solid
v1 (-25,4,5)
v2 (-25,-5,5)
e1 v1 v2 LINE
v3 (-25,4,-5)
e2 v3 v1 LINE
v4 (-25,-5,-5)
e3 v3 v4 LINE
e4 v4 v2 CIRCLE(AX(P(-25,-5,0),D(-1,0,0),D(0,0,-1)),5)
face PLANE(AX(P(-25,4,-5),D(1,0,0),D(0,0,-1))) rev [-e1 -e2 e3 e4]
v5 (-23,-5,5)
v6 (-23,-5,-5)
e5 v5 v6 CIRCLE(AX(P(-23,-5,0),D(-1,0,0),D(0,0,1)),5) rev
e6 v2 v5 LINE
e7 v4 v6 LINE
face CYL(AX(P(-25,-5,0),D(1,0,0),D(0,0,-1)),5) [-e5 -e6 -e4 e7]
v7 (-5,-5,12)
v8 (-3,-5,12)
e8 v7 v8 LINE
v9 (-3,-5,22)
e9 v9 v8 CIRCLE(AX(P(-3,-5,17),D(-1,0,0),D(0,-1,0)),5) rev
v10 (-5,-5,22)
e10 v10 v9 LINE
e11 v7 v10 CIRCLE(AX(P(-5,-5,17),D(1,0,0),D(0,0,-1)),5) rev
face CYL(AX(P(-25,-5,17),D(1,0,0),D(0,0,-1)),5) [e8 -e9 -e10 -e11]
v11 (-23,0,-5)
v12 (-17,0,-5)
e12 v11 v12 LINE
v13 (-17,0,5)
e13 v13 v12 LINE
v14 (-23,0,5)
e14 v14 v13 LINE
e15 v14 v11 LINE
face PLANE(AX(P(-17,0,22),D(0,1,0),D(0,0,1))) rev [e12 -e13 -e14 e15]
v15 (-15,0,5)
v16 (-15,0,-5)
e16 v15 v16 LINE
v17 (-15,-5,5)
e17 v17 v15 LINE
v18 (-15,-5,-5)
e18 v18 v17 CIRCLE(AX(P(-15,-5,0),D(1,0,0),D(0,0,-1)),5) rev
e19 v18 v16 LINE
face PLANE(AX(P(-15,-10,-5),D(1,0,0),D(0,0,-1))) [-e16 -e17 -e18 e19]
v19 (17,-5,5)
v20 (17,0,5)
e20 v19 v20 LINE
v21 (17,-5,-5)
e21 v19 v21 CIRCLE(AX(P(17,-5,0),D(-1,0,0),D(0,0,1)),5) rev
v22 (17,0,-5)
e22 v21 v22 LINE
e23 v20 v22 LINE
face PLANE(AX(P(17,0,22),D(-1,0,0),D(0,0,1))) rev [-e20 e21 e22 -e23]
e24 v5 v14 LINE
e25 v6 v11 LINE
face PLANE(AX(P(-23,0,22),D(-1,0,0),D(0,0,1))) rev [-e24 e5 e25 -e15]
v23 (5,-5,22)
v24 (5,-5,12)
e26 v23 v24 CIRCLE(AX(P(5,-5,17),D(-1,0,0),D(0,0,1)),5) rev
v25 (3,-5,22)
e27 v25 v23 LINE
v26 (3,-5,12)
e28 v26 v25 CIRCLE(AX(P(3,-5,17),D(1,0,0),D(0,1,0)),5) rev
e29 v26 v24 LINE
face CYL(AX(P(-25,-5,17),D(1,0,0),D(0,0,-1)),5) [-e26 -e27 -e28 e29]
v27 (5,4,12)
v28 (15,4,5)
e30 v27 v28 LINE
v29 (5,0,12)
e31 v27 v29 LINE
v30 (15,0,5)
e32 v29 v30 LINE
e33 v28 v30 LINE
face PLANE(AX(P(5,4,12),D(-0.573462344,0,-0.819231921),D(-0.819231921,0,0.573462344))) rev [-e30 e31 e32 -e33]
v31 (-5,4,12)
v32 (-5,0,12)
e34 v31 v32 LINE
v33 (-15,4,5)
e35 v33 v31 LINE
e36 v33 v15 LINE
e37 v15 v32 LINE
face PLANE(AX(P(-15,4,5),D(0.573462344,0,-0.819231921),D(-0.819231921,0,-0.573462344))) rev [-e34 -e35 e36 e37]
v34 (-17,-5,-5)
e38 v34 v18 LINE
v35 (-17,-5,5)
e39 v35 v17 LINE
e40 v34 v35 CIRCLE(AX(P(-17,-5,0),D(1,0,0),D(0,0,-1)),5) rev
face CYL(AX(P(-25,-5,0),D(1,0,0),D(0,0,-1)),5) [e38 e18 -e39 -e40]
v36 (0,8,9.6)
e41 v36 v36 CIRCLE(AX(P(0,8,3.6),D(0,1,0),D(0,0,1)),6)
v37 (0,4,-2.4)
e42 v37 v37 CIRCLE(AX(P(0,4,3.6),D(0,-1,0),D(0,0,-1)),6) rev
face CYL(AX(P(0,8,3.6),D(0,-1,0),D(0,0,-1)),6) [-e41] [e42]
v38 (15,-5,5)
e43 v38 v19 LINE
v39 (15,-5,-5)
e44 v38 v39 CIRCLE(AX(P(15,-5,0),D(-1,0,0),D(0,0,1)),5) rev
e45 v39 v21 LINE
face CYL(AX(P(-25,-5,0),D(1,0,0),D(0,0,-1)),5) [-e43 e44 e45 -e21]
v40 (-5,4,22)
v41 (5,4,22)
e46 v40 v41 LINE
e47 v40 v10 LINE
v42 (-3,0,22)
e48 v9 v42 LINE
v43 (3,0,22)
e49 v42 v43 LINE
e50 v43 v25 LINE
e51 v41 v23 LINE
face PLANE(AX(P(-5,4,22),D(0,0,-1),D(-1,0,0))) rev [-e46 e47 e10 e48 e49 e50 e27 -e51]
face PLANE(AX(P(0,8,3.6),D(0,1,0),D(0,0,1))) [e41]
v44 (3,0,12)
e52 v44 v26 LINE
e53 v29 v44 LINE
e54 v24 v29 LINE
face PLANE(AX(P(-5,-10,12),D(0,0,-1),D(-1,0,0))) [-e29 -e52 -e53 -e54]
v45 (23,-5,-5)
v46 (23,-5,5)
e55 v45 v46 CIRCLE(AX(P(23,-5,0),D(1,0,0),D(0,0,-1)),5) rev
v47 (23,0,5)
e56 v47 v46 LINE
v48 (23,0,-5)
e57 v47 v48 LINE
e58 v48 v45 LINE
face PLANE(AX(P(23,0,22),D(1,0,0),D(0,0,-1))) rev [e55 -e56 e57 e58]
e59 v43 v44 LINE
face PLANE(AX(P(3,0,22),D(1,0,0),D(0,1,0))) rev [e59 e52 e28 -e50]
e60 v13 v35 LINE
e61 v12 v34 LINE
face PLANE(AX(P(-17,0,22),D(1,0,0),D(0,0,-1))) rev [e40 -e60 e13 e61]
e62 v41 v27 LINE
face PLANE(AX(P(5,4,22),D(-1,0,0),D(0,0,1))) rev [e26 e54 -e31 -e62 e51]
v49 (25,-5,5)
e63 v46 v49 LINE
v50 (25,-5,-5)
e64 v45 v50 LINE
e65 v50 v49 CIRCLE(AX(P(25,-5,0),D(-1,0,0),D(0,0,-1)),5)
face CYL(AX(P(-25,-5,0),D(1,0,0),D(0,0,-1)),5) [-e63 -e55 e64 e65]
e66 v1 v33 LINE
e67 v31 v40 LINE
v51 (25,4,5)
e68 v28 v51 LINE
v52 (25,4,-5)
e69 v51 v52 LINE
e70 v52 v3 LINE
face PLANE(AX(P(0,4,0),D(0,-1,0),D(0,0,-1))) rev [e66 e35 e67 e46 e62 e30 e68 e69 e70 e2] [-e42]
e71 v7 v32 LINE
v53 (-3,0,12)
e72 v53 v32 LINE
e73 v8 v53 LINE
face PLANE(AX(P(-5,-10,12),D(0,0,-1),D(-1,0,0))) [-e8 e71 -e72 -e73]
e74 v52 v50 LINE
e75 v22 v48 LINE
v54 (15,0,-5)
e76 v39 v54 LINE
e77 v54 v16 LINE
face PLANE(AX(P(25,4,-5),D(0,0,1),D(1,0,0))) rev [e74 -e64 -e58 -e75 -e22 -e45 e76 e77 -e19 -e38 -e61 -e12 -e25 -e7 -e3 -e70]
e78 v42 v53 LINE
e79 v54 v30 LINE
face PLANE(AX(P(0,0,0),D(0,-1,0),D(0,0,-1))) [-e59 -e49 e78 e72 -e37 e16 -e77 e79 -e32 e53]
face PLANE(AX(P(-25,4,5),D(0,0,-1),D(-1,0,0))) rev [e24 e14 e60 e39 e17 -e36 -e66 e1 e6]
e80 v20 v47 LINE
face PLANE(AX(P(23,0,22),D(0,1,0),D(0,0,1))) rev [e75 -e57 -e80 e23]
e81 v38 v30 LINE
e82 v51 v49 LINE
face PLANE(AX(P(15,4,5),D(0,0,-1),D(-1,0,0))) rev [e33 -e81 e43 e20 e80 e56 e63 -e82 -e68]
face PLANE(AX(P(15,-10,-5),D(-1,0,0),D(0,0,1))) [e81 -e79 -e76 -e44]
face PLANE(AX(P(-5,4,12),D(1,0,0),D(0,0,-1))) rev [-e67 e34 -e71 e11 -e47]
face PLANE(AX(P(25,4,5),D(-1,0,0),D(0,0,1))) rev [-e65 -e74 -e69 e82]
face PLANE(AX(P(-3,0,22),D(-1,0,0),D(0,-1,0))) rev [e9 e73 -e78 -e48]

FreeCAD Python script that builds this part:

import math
import FreeCAD as App
import Part
import Sketcher
Q = App.Units.Quantity

doc = App.newDocument("Part")
params = doc.addObject("Spreadsheet::Sheet", "Params")
for row, (alias, value) in enumerate([
    ("sketch1_width", "10 mm"),
    ("sketch1_width2", "50 mm"),
    ("pad1_length", "4 mm"),
    ("sketch2_width", "10 mm"),
    ("pad2_length", "10 mm"),
    ("sketch3_width", "6 mm"),
    ("sketch4_radius", "5 mm"),
    ("sketch5_diameter", "12 mm"),
    ("pad3_length", "4 mm"),
], start=1):
    params.set(f"A{row}", alias)
    params.set(f"B{row}", "=" + value)
    params.setAlias(f"B{row}", alias)

body = doc.addObject("PartDesign::Body", "Body")

# Sketch on XZ plane
sketch1 = body.newObject("Sketcher::SketchObject", "Sketch")
sketch1.AttachmentSupport = (doc.getObject("XZ_Plane"), [""])
sketch1.MapMode = "FlatFace"
sketch1.addGeometry([
    Part.LineSegment(App.Vector(-5, 22, 0), App.Vector(5, 22, 0)),  # 0
    Part.LineSegment(App.Vector(5, 22, 0), App.Vector(5, 12, 0)),  # 1
    Part.LineSegment(App.Vector(5, 12, 0), App.Vector(15, 5, 0)),  # 2
    Part.LineSegment(App.Vector(15, 5, 0), App.Vector(25, 5, 0)),  # 3
    Part.LineSegment(App.Vector(25, 5, 0), App.Vector(25, -5, 0)),  # 4
    Part.LineSegment(App.Vector(25, -5, 0), App.Vector(-25, -5, 0)),  # 5
    Part.LineSegment(App.Vector(-25, -5, 0), App.Vector(-25, 5, 0)),  # 6
    Part.LineSegment(App.Vector(-25, 5, 0), App.Vector(-15, 5, 0)),  # 7
    Part.LineSegment(App.Vector(-15, 5, 0), App.Vector(-5, 12, 0)),  # 8
    Part.LineSegment(App.Vector(-5, 12, 0), App.Vector(-5, 22, 0)),  # 9
], False)
sketch1.addConstraint([
    Sketcher.Constraint("Coincident", 0, 2, 1, 1),
    Sketcher.Constraint("Coincident", 1, 2, 2, 1),
    Sketcher.Constraint("Coincident", 2, 2, 3, 1),
    Sketcher.Constraint("Coincident", 3, 2, 4, 1),
    Sketcher.Constraint("Coincident", 4, 2, 5, 1),
    Sketcher.Constraint("Coincident", 5, 2, 6, 1),
    Sketcher.Constraint("Coincident", 6, 2, 7, 1),
    Sketcher.Constraint("Coincident", 7, 2, 8, 1),
    Sketcher.Constraint("Coincident", 8, 2, 9, 1),
    Sketcher.Constraint("Coincident", 9, 2, 0, 1),
    Sketcher.Constraint("Horizontal", 0),
    Sketcher.Constraint("Vertical", 1),
    Sketcher.Constraint("Horizontal", 3),
    Sketcher.Constraint("Vertical", 4),
    Sketcher.Constraint("Horizontal", 5),
    Sketcher.Constraint("Vertical", 6),
    Sketcher.Constraint("Horizontal", 7),
    Sketcher.Constraint("Vertical", 9),
    Sketcher.Constraint("Symmetric", 3, 2, 5, 2, -1, 1),
    Sketcher.Constraint("Symmetric", 2, 2, 7, 2, -2),
    Sketcher.Constraint("Symmetric", 1, 2, 8, 2, -2),
    Sketcher.Constraint("Equal", 0, 3),
    Sketcher.Constraint("Equal", 7, 1),
    Sketcher.Constraint("Equal", 1, 4),
    Sketcher.Constraint("DistanceX", 0, 1, 0, 2, Q("10 mm")),
    Sketcher.Constraint("DistanceX", 5, 2, 5, 1, Q("50 mm")),
    Sketcher.Constraint("DistanceY", -1, 1, 0, 2, Q("22 mm")),
])
sketch1.setExpression("Constraints[24]", "Params.sketch1_width")
sketch1.setExpression("Constraints[25]", "Params.sketch1_width2")
pad1 = body.newObject("PartDesign::Pad", "Pad")
pad1.Profile = sketch1
pad1.setExpression("Length", "Params.pad1_length")
pad1.Reversed = True

# Sketch on XZ plane
sketch2 = body.newObject("Sketcher::SketchObject", "Sketch001")
sketch2.AttachmentSupport = (doc.getObject("XZ_Plane"), [""])
sketch2.MapMode = "FlatFace"
sketch2.addGeometry([
    Part.LineSegment(App.Vector(-25, -5, 0), App.Vector(-25, 5, 0)),  # 0
    Part.LineSegment(App.Vector(-25, 5, 0), App.Vector(-15, 5, 0)),  # 1
    Part.LineSegment(App.Vector(-15, 5, 0), App.Vector(-15, -5, 0)),  # 2
    Part.LineSegment(App.Vector(-15, -5, 0), App.Vector(-25, -5, 0)),  # 3
    Part.LineSegment(App.Vector(15, -5, 0), App.Vector(15, 5, 0)),  # 4
    Part.LineSegment(App.Vector(15, 5, 0), App.Vector(25, 5, 0)),  # 5
    Part.LineSegment(App.Vector(25, 5, 0), App.Vector(25, -5, 0)),  # 6
    Part.LineSegment(App.Vector(25, -5, 0), App.Vector(15, -5, 0)),  # 7
    Part.LineSegment(App.Vector(-5, 12, 0), App.Vector(-5, 22, 0)),  # 8
    Part.LineSegment(App.Vector(-5, 22, 0), App.Vector(5, 22, 0)),  # 9
    Part.LineSegment(App.Vector(5, 22, 0), App.Vector(5, 12, 0)),  # 10
    Part.LineSegment(App.Vector(5, 12, 0), App.Vector(-5, 12, 0)),  # 11
], False)
sketch2.addConstraint([
    Sketcher.Constraint("Coincident", 0, 2, 1, 1),
    Sketcher.Constraint("Coincident", 1, 2, 2, 1),
    Sketcher.Constraint("Coincident", 2, 2, 3, 1),
    Sketcher.Constraint("Coincident", 3, 2, 0, 1),
    Sketcher.Constraint("Coincident", 4, 2, 5, 1),
    Sketcher.Constraint("Coincident", 5, 2, 6, 1),
    Sketcher.Constraint("Coincident", 6, 2, 7, 1),
    Sketcher.Constraint("Coincident", 7, 2, 4, 1),
    Sketcher.Constraint("Coincident", 8, 2, 9, 1),
    Sketcher.Constraint("Coincident", 9, 2, 10, 1),
    Sketcher.Constraint("Coincident", 10, 2, 11, 1),
    Sketcher.Constraint("Coincident", 11, 2, 8, 1),
    Sketcher.Constraint("Vertical", 0),
    Sketcher.Constraint("Horizontal", 1),
    Sketcher.Constraint("Vertical", 2),
    Sketcher.Constraint("Horizontal", 3),
    Sketcher.Constraint("Vertical", 4),
    Sketcher.Constraint("Horizontal", 5),
    Sketcher.Constraint("Vertical", 6),
    Sketcher.Constraint("Horizontal", 7),
    Sketcher.Constraint("Vertical", 8),
    Sketcher.Constraint("Horizontal", 9),
    Sketcher.Constraint("Vertical", 10),
    Sketcher.Constraint("Horizontal", 11),
    Sketcher.Constraint("Symmetric", 2, 2, 4, 2, -1, 1),
    Sketcher.Constraint("Symmetric", 0, 2, 6, 2, -1, 1),
    Sketcher.Constraint("Horizontal", 1, 2, 4, 2),
    Sketcher.Constraint("Equal", 7, 9),
    Sketcher.Constraint("Equal", 11, 0),
    Sketcher.Constraint("Equal", 6, 8),
    Sketcher.Constraint("DistanceX", 1, 1, 1, 2, Q("10 mm")),
    Sketcher.Constraint("DistanceX", 0, 2, -1, 1, Q("25 mm")),
    Sketcher.Constraint("DistanceX", 8, 2, -1, 1, Q("5 mm")),
    Sketcher.Constraint("DistanceY", -1, 1, 8, 2, Q("22 mm")),
])
sketch2.setExpression("Constraints[30]", "Params.sketch2_width")
pad2 = body.newObject("PartDesign::Pad", "Pad001")
pad2.Profile = sketch2
pad2.setExpression("Length", "Params.pad2_length")

# Sketch on XY plane
sketch3 = body.newObject("Sketcher::SketchObject", "Sketch002")
sketch3.AttachmentSupport = (doc.getObject("XY_Plane"), [""])
sketch3.MapMode = "FlatFace"
sketch3.AttachmentOffset = App.Placement(App.Vector(0, 0, -5), App.Rotation())
sketch3.addGeometry([
    Part.LineSegment(App.Vector(23, 0, 0), App.Vector(23, -13, 0)),  # 0
    Part.LineSegment(App.Vector(23, -13, 0), App.Vector(17, -13, 0)),  # 1
    Part.LineSegment(App.Vector(17, -13, 0), App.Vector(17, 0, 0)),  # 2
    Part.LineSegment(App.Vector(17, 0, 0), App.Vector(23, 0, 0)),  # 3
    Part.LineSegment(App.Vector(3, 0, 0), App.Vector(3, -13, 0)),  # 4
    Part.LineSegment(App.Vector(3, -13, 0), App.Vector(-3, -13, 0)),  # 5
    Part.LineSegment(App.Vector(-3, -13, 0), App.Vector(-3, 0, 0)),  # 6
    Part.LineSegment(App.Vector(-3, 0, 0), App.Vector(3, 0, 0)),  # 7
    Part.LineSegment(App.Vector(-17, 0, 0), App.Vector(-17, -13, 0)),  # 8
    Part.LineSegment(App.Vector(-17, -13, 0), App.Vector(-23, -13, 0)),  # 9
    Part.LineSegment(App.Vector(-23, -13, 0), App.Vector(-23, 0, 0)),  # 10
    Part.LineSegment(App.Vector(-23, 0, 0), App.Vector(-17, 0, 0)),  # 11
], False)
sketch3.addConstraint([
    Sketcher.Constraint("Coincident", 0, 2, 1, 1),
    Sketcher.Constraint("Coincident", 1, 2, 2, 1),
    Sketcher.Constraint("Coincident", 2, 2, 3, 1),
    Sketcher.Constraint("Coincident", 3, 2, 0, 1),
    Sketcher.Constraint("Coincident", 4, 2, 5, 1),
    Sketcher.Constraint("Coincident", 5, 2, 6, 1),
    Sketcher.Constraint("Coincident", 6, 2, 7, 1),
    Sketcher.Constraint("Coincident", 7, 2, 4, 1),
    Sketcher.Constraint("Coincident", 8, 2, 9, 1),
    Sketcher.Constraint("Coincident", 9, 2, 10, 1),
    Sketcher.Constraint("Coincident", 10, 2, 11, 1),
    Sketcher.Constraint("Coincident", 11, 2, 8, 1),
    Sketcher.Constraint("Vertical", 0),
    Sketcher.Constraint("Horizontal", 1),
    Sketcher.Constraint("Vertical", 2),
    Sketcher.Constraint("Horizontal", 3),
    Sketcher.Constraint("Vertical", 4),
    Sketcher.Constraint("Horizontal", 5),
    Sketcher.Constraint("Vertical", 6),
    Sketcher.Constraint("Horizontal", 7),
    Sketcher.Constraint("Vertical", 8),
    Sketcher.Constraint("Horizontal", 9),
    Sketcher.Constraint("Vertical", 10),
    Sketcher.Constraint("Horizontal", 11),
    Sketcher.Constraint("Symmetric", 6, 2, 7, 2, -1, 1),
    Sketcher.Constraint("Symmetric", 3, 2, 10, 2, -1, 1),
    Sketcher.Constraint("Symmetric", 2, 2, 11, 2, -2),
    Sketcher.Constraint("Horizontal", 1, 2, 4, 2),
    Sketcher.Constraint("Equal", 3, 5),
    Sketcher.Constraint("DistanceX", 1, 2, 1, 1, Q("6 mm")),
    Sketcher.Constraint("DistanceX", -1, 1, 0, 2, Q("23 mm")),
    Sketcher.Constraint("DistanceY", 8, 2, 5, 2, Q("0.641498 mm")),
    Sketcher.Constraint("DistanceY", 0, 2, 0, 1, Q("12.745837 mm")),
])
sketch3.setExpression("Constraints[29]", "Params.sketch3_width")
pocket1 = body.newObject("PartDesign::Pocket", "Pocket")
pocket1.Profile = sketch3
pocket1.Type = "ThroughAll"
pocket1.Reversed = True

# Sketch on YZ plane
sketch4 = body.newObject("Sketcher::SketchObject", "Sketch003")
sketch4.AttachmentSupport = (doc.getObject("YZ_Plane"), [""])
sketch4.MapMode = "FlatFace"
sketch4.AttachmentOffset = App.Placement(App.Vector(0, 0, 25), App.Rotation())
sketch4.addGeometry([
    Part.LineSegment(App.Vector(-5, 22, 0), App.Vector(-13, 22, 0)),  # 0
    Part.LineSegment(App.Vector(-13, 22, 0), App.Vector(-13, 12, 0)),  # 1
    Part.LineSegment(App.Vector(-13, 12, 0), App.Vector(-5, 12, 0)),  # 2
    Part.ArcOfCircle(Part.Circle(App.Vector(-5, 17, 0), App.Vector(0, 0, 1), 5), math.radians(90), math.radians(270)),  # 3
    Part.LineSegment(App.Vector(-5, 5, 0), App.Vector(-14, 5, 0)),  # 4
    Part.LineSegment(App.Vector(-14, 5, 0), App.Vector(-14, -5, 0)),  # 5
    Part.LineSegment(App.Vector(-14, -5, 0), App.Vector(-5, -5, 0)),  # 6
    Part.ArcOfCircle(Part.Circle(App.Vector(-5, 0, 0), App.Vector(0, 0, 1), 5), math.radians(90), math.radians(270)),  # 7
], False)
sketch4.addConstraint([
    Sketcher.Constraint("Coincident", 0, 2, 1, 1),
    Sketcher.Constraint("Coincident", 1, 2, 2, 1),
    Sketcher.Constraint("Tangent", 2, 2, 3, 2),
    Sketcher.Constraint("Tangent", 3, 1, 0, 1),
    Sketcher.Constraint("Coincident", 4, 2, 5, 1),
    Sketcher.Constraint("Coincident", 5, 2, 6, 1),
    Sketcher.Constraint("Tangent", 6, 2, 7, 2),
    Sketcher.Constraint("Tangent", 7, 1, 4, 1),
    Sketcher.Constraint("Horizontal", 0),
    Sketcher.Constraint("Vertical", 1),
    Sketcher.Constraint("Horizontal", 2),
    Sketcher.Constraint("Horizontal", 4),
    Sketcher.Constraint("Vertical", 5),
    Sketcher.Constraint("Horizontal", 6),
    Sketcher.Constraint("Equal", 3, 7),
    Sketcher.Constraint("PointOnObject", 7, 3, -1),
    Sketcher.Constraint("Vertical", 3, 3, 7, 3),
    Sketcher.Constraint("Radius", 3, Q("5 mm")),
    Sketcher.Constraint("DistanceX", 3, 3, -1, 1, Q("5 mm")),
    Sketcher.Constraint("DistanceY", -1, 1, 3, 3, Q("17 mm")),
    Sketcher.Constraint("DistanceX", 0, 2, 0, 1, Q("7.806039 mm")),
    Sketcher.Constraint("DistanceX", 4, 2, 4, 1, Q("8.738678 mm")),
])
sketch4.setExpression("Constraints[17]", "Params.sketch4_radius")
pocket2 = body.newObject("PartDesign::Pocket", "Pocket001")
pocket2.Profile = sketch4
pocket2.Type = "ThroughAll"

# Sketch on XZ plane
sketch5 = body.newObject("Sketcher::SketchObject", "Sketch004")
sketch5.AttachmentSupport = (doc.getObject("XZ_Plane"), [""])
sketch5.MapMode = "FlatFace"
sketch5.AttachmentOffset = App.Placement(App.Vector(0, 0, -4), App.Rotation())
sketch5.addGeometry(Part.Circle(App.Vector(0, 4, 0), App.Vector(0, 0, 1), 6), False)
sketch5.addConstraint([
    Sketcher.Constraint("PointOnObject", 0, 3, -2),
    Sketcher.Constraint("Diameter", 0, Q("12 mm")),
    Sketcher.Constraint("DistanceY", -1, 1, 0, 3, Q("3.6 mm")),
])
sketch5.setExpression("Constraints[1]", "Params.sketch5_diameter")
pad3 = body.newObject("PartDesign::Pad", "Pad002")
pad3.Profile = sketch5
pad3.setExpression("Length", "Params.pad3_length")
pad3.Reversed = True

doc.recompute()
